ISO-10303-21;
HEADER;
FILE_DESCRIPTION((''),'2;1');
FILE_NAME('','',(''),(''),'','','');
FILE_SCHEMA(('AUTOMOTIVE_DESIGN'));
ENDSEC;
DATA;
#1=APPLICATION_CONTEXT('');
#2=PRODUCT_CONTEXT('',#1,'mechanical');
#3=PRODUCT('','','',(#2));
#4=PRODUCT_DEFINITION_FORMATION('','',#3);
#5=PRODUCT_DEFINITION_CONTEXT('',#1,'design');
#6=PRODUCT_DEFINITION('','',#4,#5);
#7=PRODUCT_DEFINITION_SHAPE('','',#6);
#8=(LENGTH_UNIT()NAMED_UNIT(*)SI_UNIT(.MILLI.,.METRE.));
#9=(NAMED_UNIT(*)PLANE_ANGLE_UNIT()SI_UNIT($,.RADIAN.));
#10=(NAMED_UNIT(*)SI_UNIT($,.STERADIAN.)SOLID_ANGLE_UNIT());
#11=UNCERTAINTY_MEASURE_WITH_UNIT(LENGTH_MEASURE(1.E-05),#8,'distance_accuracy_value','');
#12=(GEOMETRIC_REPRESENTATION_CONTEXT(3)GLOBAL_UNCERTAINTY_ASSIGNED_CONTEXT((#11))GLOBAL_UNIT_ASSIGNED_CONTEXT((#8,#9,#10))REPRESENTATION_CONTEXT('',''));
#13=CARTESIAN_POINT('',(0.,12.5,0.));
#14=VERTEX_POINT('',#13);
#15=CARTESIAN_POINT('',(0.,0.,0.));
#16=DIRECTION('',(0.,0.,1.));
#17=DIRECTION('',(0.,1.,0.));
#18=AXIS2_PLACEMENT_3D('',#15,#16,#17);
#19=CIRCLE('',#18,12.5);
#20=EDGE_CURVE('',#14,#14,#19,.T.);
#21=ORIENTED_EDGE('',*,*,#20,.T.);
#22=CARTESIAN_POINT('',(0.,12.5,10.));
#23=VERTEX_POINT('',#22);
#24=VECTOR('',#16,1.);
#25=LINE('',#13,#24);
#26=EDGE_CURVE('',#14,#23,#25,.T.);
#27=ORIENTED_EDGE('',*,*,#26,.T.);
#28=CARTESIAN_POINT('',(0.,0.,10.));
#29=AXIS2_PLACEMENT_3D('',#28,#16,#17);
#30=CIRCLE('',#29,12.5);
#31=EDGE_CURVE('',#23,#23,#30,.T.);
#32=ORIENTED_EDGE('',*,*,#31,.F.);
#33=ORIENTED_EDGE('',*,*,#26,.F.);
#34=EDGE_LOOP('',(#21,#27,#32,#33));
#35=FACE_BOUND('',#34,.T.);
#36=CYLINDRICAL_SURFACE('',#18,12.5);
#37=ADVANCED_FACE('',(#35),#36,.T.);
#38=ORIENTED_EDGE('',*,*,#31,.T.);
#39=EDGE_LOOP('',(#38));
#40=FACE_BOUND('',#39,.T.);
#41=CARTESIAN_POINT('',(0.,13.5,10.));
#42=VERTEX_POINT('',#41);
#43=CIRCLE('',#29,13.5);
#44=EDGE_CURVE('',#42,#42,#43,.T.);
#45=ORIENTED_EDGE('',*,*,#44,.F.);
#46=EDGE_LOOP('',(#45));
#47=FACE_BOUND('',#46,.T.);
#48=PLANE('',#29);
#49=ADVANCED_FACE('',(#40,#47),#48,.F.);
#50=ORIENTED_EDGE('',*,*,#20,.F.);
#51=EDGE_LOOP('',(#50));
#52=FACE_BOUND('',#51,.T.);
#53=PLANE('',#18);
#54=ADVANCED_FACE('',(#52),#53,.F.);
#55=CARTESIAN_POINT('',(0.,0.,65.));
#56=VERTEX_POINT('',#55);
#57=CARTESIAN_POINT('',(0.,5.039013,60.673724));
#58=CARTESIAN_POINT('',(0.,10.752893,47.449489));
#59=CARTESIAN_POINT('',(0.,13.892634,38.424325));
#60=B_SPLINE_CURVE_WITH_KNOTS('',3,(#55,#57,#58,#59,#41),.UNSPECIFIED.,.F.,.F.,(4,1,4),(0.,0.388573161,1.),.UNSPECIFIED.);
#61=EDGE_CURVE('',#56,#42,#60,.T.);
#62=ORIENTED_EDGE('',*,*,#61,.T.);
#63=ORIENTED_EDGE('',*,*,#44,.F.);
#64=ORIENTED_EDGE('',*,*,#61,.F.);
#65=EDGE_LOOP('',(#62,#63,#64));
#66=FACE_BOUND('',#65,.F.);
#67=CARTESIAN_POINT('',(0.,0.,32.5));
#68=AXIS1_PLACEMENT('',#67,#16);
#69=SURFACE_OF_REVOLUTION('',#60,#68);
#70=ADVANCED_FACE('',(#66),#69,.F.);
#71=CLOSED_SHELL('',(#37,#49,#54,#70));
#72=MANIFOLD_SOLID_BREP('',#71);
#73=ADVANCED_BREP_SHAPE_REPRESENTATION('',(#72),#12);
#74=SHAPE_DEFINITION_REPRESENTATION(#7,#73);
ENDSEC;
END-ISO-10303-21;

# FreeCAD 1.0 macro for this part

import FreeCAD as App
import Part
import Sketcher

doc = App.newDocument("Part")
body = doc.addObject("PartDesign::Body", "Body")

sketch1 = doc.addObject("Sketcher::SketchObject", "Sketch")
body.addObject(sketch1)
sketch1.AttachmentSupport = (doc.YZ_Plane, [""])
sketch1.MapMode = "FlatFace"
sketch1.addGeometry([
    Part.LineSegment(App.Vector(0, 65, 0), App.Vector(0, 0, 0)),
    Part.LineSegment(App.Vector(0, 0, 0), App.Vector(12.5, 0, 0)),
    Part.LineSegment(App.Vector(12.5, 0, 0), App.Vector(12.5, 10, 0)),
    Part.LineSegment(App.Vector(12.5, 10, 0), App.Vector(13.5, 10, 0)),
    Part.BSplineCurve([App.Vector(0, 65, 0), App.Vector(5.039013, 60.673724, 0), App.Vector(10.752893, 47.449489, 0), App.Vector(13.892634, 38.424325, 0), App.Vector(13.5, 10, 0)], [4, 1, 4], [0, 0.388573161, 1], False, 3, [1, 1, 1, 1, 1], False),
], False)
sketch1.addConstraint([
    Sketcher.Constraint("Block", 4),
    Sketcher.Constraint("Coincident", 0, 2, 1, 1),
    Sketcher.Constraint("Coincident", 1, 2, 2, 1),
    Sketcher.Constraint("Coincident", 2, 2, 3, 1),
    Sketcher.Constraint("Coincident", 3, 2, 4, 2),
    Sketcher.Constraint("Coincident", 4, 1, 0, 1),
    Sketcher.Constraint("Vertical", 0),
    Sketcher.Constraint("Horizontal", 1),
    Sketcher.Constraint("Vertical", 2),
    Sketcher.Constraint("Horizontal", 3),
    Sketcher.Constraint("PointOnObject", 1, 2, -1),
    Sketcher.Constraint("DistanceX", 3, 1, 3, 2, 1.0),
])
revolution = doc.addObject("PartDesign::Revolution", "Revolution")
body.addObject(revolution)
revolution.Profile = sketch1
revolution.ReferenceAxis = (sketch1, ["V_Axis"])
revolution.Angle = 360

doc.recompute()
